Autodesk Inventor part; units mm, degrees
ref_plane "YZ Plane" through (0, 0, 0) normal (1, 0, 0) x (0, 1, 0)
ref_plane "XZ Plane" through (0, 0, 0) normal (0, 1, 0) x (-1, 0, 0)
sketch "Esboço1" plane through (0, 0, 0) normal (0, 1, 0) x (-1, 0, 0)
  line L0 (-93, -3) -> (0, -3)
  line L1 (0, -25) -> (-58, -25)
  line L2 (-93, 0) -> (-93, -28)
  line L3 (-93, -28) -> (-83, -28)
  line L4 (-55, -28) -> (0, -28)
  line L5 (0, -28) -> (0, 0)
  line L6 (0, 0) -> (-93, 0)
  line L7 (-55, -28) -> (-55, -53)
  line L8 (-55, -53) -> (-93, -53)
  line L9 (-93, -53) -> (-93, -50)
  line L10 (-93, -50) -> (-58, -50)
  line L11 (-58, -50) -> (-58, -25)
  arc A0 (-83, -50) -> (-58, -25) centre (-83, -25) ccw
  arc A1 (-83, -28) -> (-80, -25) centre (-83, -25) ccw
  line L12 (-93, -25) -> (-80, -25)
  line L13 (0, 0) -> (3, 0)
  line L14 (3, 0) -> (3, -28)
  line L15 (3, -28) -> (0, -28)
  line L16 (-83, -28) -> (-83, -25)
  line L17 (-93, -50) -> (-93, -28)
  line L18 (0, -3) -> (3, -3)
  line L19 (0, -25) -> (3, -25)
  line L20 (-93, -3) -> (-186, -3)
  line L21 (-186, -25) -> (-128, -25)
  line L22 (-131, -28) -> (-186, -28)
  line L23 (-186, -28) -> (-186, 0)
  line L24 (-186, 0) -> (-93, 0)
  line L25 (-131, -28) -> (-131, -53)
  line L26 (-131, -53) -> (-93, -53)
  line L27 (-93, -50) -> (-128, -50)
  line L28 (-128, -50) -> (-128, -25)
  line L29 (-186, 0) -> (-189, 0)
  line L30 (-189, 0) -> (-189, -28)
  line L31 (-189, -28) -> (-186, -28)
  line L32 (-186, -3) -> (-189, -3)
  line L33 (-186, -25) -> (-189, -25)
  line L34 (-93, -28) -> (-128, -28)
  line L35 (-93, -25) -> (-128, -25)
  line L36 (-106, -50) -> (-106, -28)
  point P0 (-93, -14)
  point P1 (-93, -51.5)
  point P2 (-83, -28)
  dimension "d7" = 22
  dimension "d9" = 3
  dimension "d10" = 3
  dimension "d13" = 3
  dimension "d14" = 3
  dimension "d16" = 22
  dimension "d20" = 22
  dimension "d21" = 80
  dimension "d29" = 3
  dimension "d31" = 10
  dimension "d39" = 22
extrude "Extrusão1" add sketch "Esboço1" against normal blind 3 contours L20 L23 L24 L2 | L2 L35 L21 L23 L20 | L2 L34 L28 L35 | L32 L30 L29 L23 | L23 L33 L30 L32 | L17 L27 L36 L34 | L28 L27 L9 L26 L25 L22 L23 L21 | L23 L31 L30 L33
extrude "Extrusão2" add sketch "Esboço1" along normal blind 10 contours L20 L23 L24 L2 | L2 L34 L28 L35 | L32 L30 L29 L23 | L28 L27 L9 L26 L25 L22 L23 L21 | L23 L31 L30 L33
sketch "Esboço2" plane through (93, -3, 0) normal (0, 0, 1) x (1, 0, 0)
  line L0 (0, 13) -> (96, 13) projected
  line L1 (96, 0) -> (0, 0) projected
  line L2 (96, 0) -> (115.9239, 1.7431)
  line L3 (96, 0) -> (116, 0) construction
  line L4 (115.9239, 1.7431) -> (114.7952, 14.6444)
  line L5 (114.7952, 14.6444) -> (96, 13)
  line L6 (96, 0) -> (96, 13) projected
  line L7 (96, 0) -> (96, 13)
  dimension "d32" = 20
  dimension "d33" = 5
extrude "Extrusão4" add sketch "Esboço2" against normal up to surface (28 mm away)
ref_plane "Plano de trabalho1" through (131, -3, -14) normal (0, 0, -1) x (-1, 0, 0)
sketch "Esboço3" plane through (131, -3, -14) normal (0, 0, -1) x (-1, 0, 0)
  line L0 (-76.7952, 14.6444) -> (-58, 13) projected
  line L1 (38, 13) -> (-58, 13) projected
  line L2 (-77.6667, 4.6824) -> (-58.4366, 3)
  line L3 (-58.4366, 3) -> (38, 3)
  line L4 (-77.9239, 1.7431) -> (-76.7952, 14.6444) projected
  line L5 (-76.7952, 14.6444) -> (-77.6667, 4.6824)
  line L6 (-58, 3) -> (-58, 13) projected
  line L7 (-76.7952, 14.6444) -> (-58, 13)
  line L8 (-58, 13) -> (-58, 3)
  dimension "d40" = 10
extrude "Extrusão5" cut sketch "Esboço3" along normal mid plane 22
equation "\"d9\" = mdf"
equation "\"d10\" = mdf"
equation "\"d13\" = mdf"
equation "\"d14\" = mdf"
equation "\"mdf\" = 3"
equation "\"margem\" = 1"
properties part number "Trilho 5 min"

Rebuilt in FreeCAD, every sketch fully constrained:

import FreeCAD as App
import Part
import Sketcher
Q = App.Units.Quantity


def add_polygon(sketch, points):
    """Adds a closed chain of lines whose ends are joined by coincident constraints."""
    first, n = sketch.GeometryCount, len(points)
    for a, b in zip(points, points[1:] + points[:1]):
        sketch.addGeometry(Part.LineSegment(App.Vector(*a, 0), App.Vector(*b, 0)), False)
    for i in range(n):
        sketch.addConstraint(Sketcher.Constraint("Coincident", first + i, 2, first + (i + 1) % n, 1))

doc = App.newDocument("Part")
body = doc.addObject("PartDesign::Body", "Body")

# Sketch on XZ plane
sketch1 = body.newObject("Sketcher::SketchObject", "Sketch")
sketch1.AttachmentSupport = (doc.getObject("XZ_Plane"), [""])
sketch1.MapMode = "FlatFace"
add_polygon(sketch1, [(93, 0), (189, 0), (189, -28), (131, -28), (131, -53), (93, -53)])  # lines 0-5
add_polygon(sketch1, [(128, -28), (106, -28), (106, -50), (128, -50)])  # lines 6-9
sketch1.addConstraint([
    Sketcher.Constraint("Horizontal", 0),
    Sketcher.Constraint("Vertical", 1),
    Sketcher.Constraint("Horizontal", 2),
    Sketcher.Constraint("Vertical", 3),
    Sketcher.Constraint("Horizontal", 4),
    Sketcher.Constraint("Vertical", 5),
    Sketcher.Constraint("Horizontal", 6),
    Sketcher.Constraint("Vertical", 7),
    Sketcher.Constraint("Horizontal", 8),
    Sketcher.Constraint("Vertical", 9),
    Sketcher.Constraint("PointOnObject", 0, 2, -1),
    Sketcher.Constraint("Horizontal", 2, 2, 6, 2),
    Sketcher.Constraint("Equal", 8, 7),
    Sketcher.Constraint("DistanceX", 6, 2, 6, 1, Q("22 mm")),
    Sketcher.Constraint("DistanceY", 4, 2, 7, 2, Q("3 mm")),
    Sketcher.Constraint("DistanceX", 8, 2, 3, 2, Q("3 mm")),
    Sketcher.Constraint("DistanceX", 0, 1, 0, 2, Q("96 mm")),
    Sketcher.Constraint("DistanceX", 2, 2, 2, 1, Q("58 mm")),
    Sketcher.Constraint("DistanceY", 1, 2, 1, 1, Q("28 mm")),
    Sketcher.Constraint("DistanceX", -1, 1, 0, 2, Q("189 mm")),
])
pad1 = body.newObject("PartDesign::Pad", "Pad")
pad1.Profile = sketch1
pad1.Length = 3

# Sketch on XZ plane
sketch2 = body.newObject("Sketcher::SketchObject", "Sketch001")
sketch2.AttachmentSupport = (doc.getObject("XZ_Plane"), [""])
sketch2.MapMode = "FlatFace"
add_polygon(sketch2, [(93, -3), (93, 0), (189, 0), (189, -3)])  # lines 0-3
add_polygon(sketch2, [(93, -28), (93, -25), (189, -25), (189, -28), (131, -28), (131, -53), (93, -53), (93, -50), (128, -50), (128, -28)])  # lines 4-13
sketch2.addConstraint([
    Sketcher.Constraint("Vertical", 0),
    Sketcher.Constraint("Horizontal", 1),
    Sketcher.Constraint("Vertical", 2),
    Sketcher.Constraint("Horizontal", 3),
    Sketcher.Constraint("Vertical", 4),
    Sketcher.Constraint("Horizontal", 5),
    Sketcher.Constraint("Vertical", 6),
    Sketcher.Constraint("Horizontal", 7),
    Sketcher.Constraint("Vertical", 8),
    Sketcher.Constraint("Horizontal", 9),
    Sketcher.Constraint("Vertical", 10),
    Sketcher.Constraint("Horizontal", 11),
    Sketcher.Constraint("Vertical", 12),
    Sketcher.Constraint("Horizontal", 13),
    Sketcher.Constraint("PointOnObject", 0, 2, -1),
    Sketcher.Constraint("Horizontal", 7, 2, 12, 2),
    Sketcher.Constraint("Vertical", 3, 2, 4, 2),
    Sketcher.Constraint("Vertical", 2, 2, 5, 2),
    Sketcher.Constraint("Vertical", 4, 2, 9, 2),
    Sketcher.Constraint("Equal", 2, 4),
    Sketcher.Constraint("Equal", 6, 10),
    Sketcher.Constraint("DistanceY", 0, 1, 0, 2, Q("3 mm")),
    Sketcher.Constraint("DistanceY", 12, 1, 12, 2, Q("22 mm")),
    Sketcher.Constraint("DistanceY", 4, 2, 3, 2, Q("22 mm")),
    Sketcher.Constraint("DistanceX", 11, 2, 8, 2, Q("3 mm")),
    Sketcher.Constraint("DistanceX", 1, 1, 1, 2, Q("96 mm")),
    Sketcher.Constraint("DistanceX", 7, 2, 7, 1, Q("58 mm")),
    Sketcher.Constraint("DistanceX", -1, 1, 0, 2, Q("93 mm")),
])
pad2 = body.newObject("PartDesign::Pad", "Pad001")
pad2.Profile = sketch2
pad2.Length = 10
pad2.Reversed = True

# Sketch on XY plane
sketch3 = body.newObject("Sketcher::SketchObject", "Sketch002")
sketch3.AttachmentSupport = (doc.getObject("XY_Plane"), [""])
sketch3.MapMode = "FlatFace"
add_polygon(sketch3, [(189, 10), (189, -3), (209, -1), (208, 12)])  # lines 0-3
sketch3.addConstraint([
    Sketcher.Constraint("Vertical", 0),
    Sketcher.Constraint("Perpendicular", 1, 2),
    Sketcher.Constraint("Perpendicular", 2, 3),
    Sketcher.Constraint("Angle", 1, Q("5 deg")),
    Sketcher.Constraint("Distance", 1, Q("20 mm")),
    Sketcher.Constraint("DistanceY", 0, 2, 0, 1, Q("13 mm")),
    Sketcher.Constraint("DistanceX", -1, 1, 0, 2, Q("189 mm")),
    Sketcher.Constraint("DistanceY", 0, 2, -1, 1, Q("3 mm")),
])
pad3 = body.newObject("PartDesign::Pad", "Pad002")
pad3.Profile = sketch3
pad3.Length = 28
pad3.Reversed = True

# Sketch on XY plane
sketch4 = body.newObject("Sketcher::SketchObject", "Sketch003")
sketch4.AttachmentSupport = (doc.getObject("XY_Plane"), [""])
sketch4.MapMode = "FlatFace"
sketch4.AttachmentOffset = App.Placement(App.Vector(0, 0, -14), App.Rotation())
add_polygon(sketch4, [(189, 10), (207.8, 11.64), (208.67, 1.68), (189.44, 0), (189, 0)])  # lines 0-4
sketch4.addConstraint([
    Sketcher.Constraint("Horizontal", 3),
    Sketcher.Constraint("Vertical", 4),
    Sketcher.Constraint("PointOnObject", 2, 2, -1),
    Sketcher.Constraint("Perpendicular", 0, 1),
    Sketcher.Constraint("Perpendicular", 1, 2),
    Sketcher.Constraint("DistanceY", 4, 1, 4, 2, Q("10 mm")),
    Sketcher.Constraint("Distance", 1, Q("10 mm")),
    Sketcher.Constraint("Angle", 0, Q("5 deg")),
    Sketcher.Constraint("DistanceX", -1, 1, 3, 2, Q("189 mm")),
    Sketcher.Constraint("Distance", 0, Q("18.867 mm")),
])
pocket1 = body.newObject("PartDesign::Pocket", "Pocket")
pocket1.Profile = sketch4
pocket1.Length = 22
pocket1.Midplane = True

doc.recompute()
